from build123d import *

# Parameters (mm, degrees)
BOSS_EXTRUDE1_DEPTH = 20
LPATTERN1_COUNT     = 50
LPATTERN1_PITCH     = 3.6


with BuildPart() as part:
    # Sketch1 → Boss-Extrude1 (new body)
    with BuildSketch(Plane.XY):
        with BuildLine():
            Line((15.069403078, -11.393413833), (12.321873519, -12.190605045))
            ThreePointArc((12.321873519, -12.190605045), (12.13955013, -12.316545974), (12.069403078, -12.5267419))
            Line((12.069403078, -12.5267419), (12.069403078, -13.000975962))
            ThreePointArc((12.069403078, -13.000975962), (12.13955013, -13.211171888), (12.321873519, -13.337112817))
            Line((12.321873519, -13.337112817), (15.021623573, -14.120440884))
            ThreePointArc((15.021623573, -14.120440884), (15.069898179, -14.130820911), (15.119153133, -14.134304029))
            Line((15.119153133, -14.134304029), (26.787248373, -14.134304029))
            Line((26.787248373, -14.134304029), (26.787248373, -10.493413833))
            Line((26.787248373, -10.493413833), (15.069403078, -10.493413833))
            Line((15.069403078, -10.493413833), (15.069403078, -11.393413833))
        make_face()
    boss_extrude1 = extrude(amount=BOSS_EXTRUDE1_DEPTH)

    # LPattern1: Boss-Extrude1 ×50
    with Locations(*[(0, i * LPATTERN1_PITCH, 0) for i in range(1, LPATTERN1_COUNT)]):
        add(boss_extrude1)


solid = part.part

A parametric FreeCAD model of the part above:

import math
import FreeCAD as App
import Part
import Sketcher

V = App.Vector
Q = App.Units.Quantity

doc = App.newDocument("Part")
body = doc.addObject("PartDesign::Body", "Body")

# Sketch on XY plane
sketch1 = body.newObject("Sketcher::SketchObject", "Sketch")
sketch1.AttachmentSupport = (doc.getObject("XY_Plane"), [""])
sketch1.MapMode = "FlatFace"
sketch1.addGeometry([
    Part.LineSegment(V(15.07, -11.39, 0), V(12.32, -12.19, 0)),  # 0
    Part.ArcOfCircle(Part.Circle(V(12.42, -12.53, 0), V(0, 0, 1), 0.35), math.radians(106), math.radians(180)),  # 1
    Part.LineSegment(V(12.07, -12.53, 0), V(12.07, -13, 0)),  # 2
    Part.ArcOfCircle(Part.Circle(V(12.42, -13, 0), V(0, 0, 1), 0.35), math.radians(-180), math.radians(-106)),  # 3
    Part.LineSegment(V(12.32, -13.34, 0), V(15.02, -14.12, 0)),  # 4
    Part.ArcOfCircle(Part.Circle(V(15.12, -13.78, 0), V(0, 0, 1), 0.35), math.radians(-106.18), math.radians(-90)),  # 5
    Part.LineSegment(V(15.12, -14.13, 0), V(26.79, -14.13, 0)),  # 6
    Part.LineSegment(V(26.79, -14.13, 0), V(26.79, -10.49, 0)),  # 7
    Part.LineSegment(V(26.79, -10.49, 0), V(15.07, -10.49, 0)),  # 8
    Part.LineSegment(V(15.07, -10.49, 0), V(15.07, -11.39, 0)),  # 9
], False)
sketch1.addConstraint([
    Sketcher.Constraint("Tangent", 0, 2, 1, 1),
    Sketcher.Constraint("Tangent", 1, 2, 2, 1),
    Sketcher.Constraint("Tangent", 2, 2, 3, 1),
    Sketcher.Constraint("Tangent", 3, 2, 4, 1),
    Sketcher.Constraint("Tangent", 4, 2, 5, 1),
    Sketcher.Constraint("Tangent", 5, 2, 6, 1),
    Sketcher.Constraint("Coincident", 6, 2, 7, 1),
    Sketcher.Constraint("Coincident", 7, 2, 8, 1),
    Sketcher.Constraint("Coincident", 8, 2, 9, 1),
    Sketcher.Constraint("Coincident", 9, 2, 0, 1),
    Sketcher.Constraint("Vertical", 2),
    Sketcher.Constraint("Horizontal", 6),
    Sketcher.Constraint("Vertical", 7),
    Sketcher.Constraint("Horizontal", 8),
    Sketcher.Constraint("Vertical", 9),
    Sketcher.Constraint("Equal", 1, 3),
    Sketcher.Constraint("Equal", 3, 5),
    Sketcher.Constraint("Vertical", 0, 2, 3, 2),
    Sketcher.Constraint("Radius", 1, 0.35),
    Sketcher.Constraint("DistanceY", 9, 2, 9, 1, 0.9),
    Sketcher.Constraint("DistanceX", 1, 2, 8, 2, 3.0),
    Sketcher.Constraint("Angle", 0, Q("-163.82 deg")),
    Sketcher.Constraint("DistanceY", 7, 1, 7, 2, 3.64089),
    Sketcher.Constraint("DistanceX", 6, 1, 6, 2, 11.668095),
    Sketcher.Constraint("DistanceX", 8, 2, 8, 1, 11.717845),
    Sketcher.Constraint("DistanceY", 1, 3, -1, 1, 12.526742),
    Sketcher.Constraint("DistanceX", -1, 1, 6, 2, 26.787248),
])
pad1 = body.newObject("PartDesign::Pad", "Pad")
pad1.Profile = sketch1
pad1.Length = 20
doc.recompute()

linearpattern = body.newObject("PartDesign::LinearPattern", "LinearPattern")
linearpattern.Originals = [pad1]
linearpattern.Direction = (doc.getObject("Y_Axis"), [""])
linearpattern.Mode = "offset"
linearpattern.Offset = 3.6
linearpattern.Occurrences = 50
body.Tip = linearpattern

doc.recompute()
